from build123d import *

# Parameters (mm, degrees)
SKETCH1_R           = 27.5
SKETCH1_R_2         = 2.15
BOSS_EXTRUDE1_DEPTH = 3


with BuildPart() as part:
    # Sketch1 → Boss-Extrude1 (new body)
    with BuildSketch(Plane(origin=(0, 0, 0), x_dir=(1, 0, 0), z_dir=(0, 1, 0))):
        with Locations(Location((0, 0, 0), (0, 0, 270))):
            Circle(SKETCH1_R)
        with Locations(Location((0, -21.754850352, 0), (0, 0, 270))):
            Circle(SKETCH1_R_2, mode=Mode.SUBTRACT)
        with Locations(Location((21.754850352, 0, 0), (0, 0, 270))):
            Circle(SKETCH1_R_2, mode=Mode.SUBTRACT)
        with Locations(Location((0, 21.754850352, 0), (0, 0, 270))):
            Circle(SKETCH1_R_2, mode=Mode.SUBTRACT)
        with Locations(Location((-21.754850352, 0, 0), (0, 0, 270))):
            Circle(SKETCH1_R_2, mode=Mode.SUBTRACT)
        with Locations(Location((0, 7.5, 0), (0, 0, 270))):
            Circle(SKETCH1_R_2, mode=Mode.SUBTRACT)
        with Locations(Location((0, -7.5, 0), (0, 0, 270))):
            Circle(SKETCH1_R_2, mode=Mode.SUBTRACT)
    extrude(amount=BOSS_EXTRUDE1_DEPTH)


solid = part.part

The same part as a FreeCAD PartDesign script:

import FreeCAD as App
import Part
import Sketcher

V = App.Vector
Q = App.Units.Quantity

doc = App.newDocument("Part")
body = doc.addObject("PartDesign::Body", "Body")

# Sketch on XZ plane
sketch1 = body.newObject("Sketcher::SketchObject", "Sketch")
sketch1.AttachmentSupport = (doc.getObject("XZ_Plane"), [""])
sketch1.MapMode = "FlatFace"
sketch1.addGeometry(Part.Circle(V(0, 0, 0), V(0, 0, 1), 27.5), False)
sketch1.addGeometry(Part.Circle(V(0, -21.8, 0), V(0, 0, 1), 2.1), False)
sketch1.addGeometry(Part.Circle(V(-21.8, 0, 0), V(0, 0, 1), 2.1), False)
sketch1.addGeometry(Part.Circle(V(0, -7.5, 0), V(0, 0, 1), 2.1), False)
sketch1.addGeometry(Part.Circle(V(21.8, 0, 0), V(0, 0, 1), 2.1), False)
sketch1.addGeometry(Part.Circle(V(0, 7.5, 0), V(0, 0, 1), 2.1), False)
sketch1.addGeometry(Part.Circle(V(0, 21.8, 0), V(0, 0, 1), 2.1), False)
sketch1.addConstraint(Sketcher.Constraint("Coincident", 0, 3, -1, 1))
sketch1.addConstraint(Sketcher.Constraint("Equal", 1, 2))
sketch1.addConstraint(Sketcher.Constraint("Equal", 2, 3))
sketch1.addConstraint(Sketcher.Constraint("Equal", 3, 4))
sketch1.addConstraint(Sketcher.Constraint("Equal", 4, 5))
sketch1.addConstraint(Sketcher.Constraint("Equal", 5, 6))
sketch1.addConstraint(Sketcher.Constraint("Symmetric", 2, 3, 4, 3, -1, 1))
sketch1.addConstraint(Sketcher.Constraint("Symmetric", 3, 3, 5, 3, -1, 1))
sketch1.addConstraint(Sketcher.Constraint("Symmetric", 1, 3, 6, 3, -1, 1))
sketch1.addConstraint(Sketcher.Constraint("PointOnObject", 1, 3, -2))
sketch1.addConstraint(Sketcher.Constraint("PointOnObject", 2, 3, -1))
sketch1.addConstraint(Sketcher.Constraint("PointOnObject", 3, 3, -2))
sketch1.addConstraint(Sketcher.Constraint("Diameter", 0, Q("55 mm")))
sketch1.addConstraint(Sketcher.Constraint("Diameter", 1, Q("4.3 mm")))
sketch1.addConstraint(Sketcher.Constraint("DistanceY", 3, 3, 5, 3, Q("15 mm")))
sketch1.addConstraint(Sketcher.Constraint("DistanceX", 2, 3, 4, 3, Q("43.509701 mm")))
sketch1.addConstraint(Sketcher.Constraint("DistanceY", 1, 3, -1, 1, Q("21.75485 mm")))
pad1 = body.newObject("PartDesign::Pad", "Pad")
pad1.Profile = sketch1
pad1.Length = 3
pad1.Reversed = True

doc.recompute()
